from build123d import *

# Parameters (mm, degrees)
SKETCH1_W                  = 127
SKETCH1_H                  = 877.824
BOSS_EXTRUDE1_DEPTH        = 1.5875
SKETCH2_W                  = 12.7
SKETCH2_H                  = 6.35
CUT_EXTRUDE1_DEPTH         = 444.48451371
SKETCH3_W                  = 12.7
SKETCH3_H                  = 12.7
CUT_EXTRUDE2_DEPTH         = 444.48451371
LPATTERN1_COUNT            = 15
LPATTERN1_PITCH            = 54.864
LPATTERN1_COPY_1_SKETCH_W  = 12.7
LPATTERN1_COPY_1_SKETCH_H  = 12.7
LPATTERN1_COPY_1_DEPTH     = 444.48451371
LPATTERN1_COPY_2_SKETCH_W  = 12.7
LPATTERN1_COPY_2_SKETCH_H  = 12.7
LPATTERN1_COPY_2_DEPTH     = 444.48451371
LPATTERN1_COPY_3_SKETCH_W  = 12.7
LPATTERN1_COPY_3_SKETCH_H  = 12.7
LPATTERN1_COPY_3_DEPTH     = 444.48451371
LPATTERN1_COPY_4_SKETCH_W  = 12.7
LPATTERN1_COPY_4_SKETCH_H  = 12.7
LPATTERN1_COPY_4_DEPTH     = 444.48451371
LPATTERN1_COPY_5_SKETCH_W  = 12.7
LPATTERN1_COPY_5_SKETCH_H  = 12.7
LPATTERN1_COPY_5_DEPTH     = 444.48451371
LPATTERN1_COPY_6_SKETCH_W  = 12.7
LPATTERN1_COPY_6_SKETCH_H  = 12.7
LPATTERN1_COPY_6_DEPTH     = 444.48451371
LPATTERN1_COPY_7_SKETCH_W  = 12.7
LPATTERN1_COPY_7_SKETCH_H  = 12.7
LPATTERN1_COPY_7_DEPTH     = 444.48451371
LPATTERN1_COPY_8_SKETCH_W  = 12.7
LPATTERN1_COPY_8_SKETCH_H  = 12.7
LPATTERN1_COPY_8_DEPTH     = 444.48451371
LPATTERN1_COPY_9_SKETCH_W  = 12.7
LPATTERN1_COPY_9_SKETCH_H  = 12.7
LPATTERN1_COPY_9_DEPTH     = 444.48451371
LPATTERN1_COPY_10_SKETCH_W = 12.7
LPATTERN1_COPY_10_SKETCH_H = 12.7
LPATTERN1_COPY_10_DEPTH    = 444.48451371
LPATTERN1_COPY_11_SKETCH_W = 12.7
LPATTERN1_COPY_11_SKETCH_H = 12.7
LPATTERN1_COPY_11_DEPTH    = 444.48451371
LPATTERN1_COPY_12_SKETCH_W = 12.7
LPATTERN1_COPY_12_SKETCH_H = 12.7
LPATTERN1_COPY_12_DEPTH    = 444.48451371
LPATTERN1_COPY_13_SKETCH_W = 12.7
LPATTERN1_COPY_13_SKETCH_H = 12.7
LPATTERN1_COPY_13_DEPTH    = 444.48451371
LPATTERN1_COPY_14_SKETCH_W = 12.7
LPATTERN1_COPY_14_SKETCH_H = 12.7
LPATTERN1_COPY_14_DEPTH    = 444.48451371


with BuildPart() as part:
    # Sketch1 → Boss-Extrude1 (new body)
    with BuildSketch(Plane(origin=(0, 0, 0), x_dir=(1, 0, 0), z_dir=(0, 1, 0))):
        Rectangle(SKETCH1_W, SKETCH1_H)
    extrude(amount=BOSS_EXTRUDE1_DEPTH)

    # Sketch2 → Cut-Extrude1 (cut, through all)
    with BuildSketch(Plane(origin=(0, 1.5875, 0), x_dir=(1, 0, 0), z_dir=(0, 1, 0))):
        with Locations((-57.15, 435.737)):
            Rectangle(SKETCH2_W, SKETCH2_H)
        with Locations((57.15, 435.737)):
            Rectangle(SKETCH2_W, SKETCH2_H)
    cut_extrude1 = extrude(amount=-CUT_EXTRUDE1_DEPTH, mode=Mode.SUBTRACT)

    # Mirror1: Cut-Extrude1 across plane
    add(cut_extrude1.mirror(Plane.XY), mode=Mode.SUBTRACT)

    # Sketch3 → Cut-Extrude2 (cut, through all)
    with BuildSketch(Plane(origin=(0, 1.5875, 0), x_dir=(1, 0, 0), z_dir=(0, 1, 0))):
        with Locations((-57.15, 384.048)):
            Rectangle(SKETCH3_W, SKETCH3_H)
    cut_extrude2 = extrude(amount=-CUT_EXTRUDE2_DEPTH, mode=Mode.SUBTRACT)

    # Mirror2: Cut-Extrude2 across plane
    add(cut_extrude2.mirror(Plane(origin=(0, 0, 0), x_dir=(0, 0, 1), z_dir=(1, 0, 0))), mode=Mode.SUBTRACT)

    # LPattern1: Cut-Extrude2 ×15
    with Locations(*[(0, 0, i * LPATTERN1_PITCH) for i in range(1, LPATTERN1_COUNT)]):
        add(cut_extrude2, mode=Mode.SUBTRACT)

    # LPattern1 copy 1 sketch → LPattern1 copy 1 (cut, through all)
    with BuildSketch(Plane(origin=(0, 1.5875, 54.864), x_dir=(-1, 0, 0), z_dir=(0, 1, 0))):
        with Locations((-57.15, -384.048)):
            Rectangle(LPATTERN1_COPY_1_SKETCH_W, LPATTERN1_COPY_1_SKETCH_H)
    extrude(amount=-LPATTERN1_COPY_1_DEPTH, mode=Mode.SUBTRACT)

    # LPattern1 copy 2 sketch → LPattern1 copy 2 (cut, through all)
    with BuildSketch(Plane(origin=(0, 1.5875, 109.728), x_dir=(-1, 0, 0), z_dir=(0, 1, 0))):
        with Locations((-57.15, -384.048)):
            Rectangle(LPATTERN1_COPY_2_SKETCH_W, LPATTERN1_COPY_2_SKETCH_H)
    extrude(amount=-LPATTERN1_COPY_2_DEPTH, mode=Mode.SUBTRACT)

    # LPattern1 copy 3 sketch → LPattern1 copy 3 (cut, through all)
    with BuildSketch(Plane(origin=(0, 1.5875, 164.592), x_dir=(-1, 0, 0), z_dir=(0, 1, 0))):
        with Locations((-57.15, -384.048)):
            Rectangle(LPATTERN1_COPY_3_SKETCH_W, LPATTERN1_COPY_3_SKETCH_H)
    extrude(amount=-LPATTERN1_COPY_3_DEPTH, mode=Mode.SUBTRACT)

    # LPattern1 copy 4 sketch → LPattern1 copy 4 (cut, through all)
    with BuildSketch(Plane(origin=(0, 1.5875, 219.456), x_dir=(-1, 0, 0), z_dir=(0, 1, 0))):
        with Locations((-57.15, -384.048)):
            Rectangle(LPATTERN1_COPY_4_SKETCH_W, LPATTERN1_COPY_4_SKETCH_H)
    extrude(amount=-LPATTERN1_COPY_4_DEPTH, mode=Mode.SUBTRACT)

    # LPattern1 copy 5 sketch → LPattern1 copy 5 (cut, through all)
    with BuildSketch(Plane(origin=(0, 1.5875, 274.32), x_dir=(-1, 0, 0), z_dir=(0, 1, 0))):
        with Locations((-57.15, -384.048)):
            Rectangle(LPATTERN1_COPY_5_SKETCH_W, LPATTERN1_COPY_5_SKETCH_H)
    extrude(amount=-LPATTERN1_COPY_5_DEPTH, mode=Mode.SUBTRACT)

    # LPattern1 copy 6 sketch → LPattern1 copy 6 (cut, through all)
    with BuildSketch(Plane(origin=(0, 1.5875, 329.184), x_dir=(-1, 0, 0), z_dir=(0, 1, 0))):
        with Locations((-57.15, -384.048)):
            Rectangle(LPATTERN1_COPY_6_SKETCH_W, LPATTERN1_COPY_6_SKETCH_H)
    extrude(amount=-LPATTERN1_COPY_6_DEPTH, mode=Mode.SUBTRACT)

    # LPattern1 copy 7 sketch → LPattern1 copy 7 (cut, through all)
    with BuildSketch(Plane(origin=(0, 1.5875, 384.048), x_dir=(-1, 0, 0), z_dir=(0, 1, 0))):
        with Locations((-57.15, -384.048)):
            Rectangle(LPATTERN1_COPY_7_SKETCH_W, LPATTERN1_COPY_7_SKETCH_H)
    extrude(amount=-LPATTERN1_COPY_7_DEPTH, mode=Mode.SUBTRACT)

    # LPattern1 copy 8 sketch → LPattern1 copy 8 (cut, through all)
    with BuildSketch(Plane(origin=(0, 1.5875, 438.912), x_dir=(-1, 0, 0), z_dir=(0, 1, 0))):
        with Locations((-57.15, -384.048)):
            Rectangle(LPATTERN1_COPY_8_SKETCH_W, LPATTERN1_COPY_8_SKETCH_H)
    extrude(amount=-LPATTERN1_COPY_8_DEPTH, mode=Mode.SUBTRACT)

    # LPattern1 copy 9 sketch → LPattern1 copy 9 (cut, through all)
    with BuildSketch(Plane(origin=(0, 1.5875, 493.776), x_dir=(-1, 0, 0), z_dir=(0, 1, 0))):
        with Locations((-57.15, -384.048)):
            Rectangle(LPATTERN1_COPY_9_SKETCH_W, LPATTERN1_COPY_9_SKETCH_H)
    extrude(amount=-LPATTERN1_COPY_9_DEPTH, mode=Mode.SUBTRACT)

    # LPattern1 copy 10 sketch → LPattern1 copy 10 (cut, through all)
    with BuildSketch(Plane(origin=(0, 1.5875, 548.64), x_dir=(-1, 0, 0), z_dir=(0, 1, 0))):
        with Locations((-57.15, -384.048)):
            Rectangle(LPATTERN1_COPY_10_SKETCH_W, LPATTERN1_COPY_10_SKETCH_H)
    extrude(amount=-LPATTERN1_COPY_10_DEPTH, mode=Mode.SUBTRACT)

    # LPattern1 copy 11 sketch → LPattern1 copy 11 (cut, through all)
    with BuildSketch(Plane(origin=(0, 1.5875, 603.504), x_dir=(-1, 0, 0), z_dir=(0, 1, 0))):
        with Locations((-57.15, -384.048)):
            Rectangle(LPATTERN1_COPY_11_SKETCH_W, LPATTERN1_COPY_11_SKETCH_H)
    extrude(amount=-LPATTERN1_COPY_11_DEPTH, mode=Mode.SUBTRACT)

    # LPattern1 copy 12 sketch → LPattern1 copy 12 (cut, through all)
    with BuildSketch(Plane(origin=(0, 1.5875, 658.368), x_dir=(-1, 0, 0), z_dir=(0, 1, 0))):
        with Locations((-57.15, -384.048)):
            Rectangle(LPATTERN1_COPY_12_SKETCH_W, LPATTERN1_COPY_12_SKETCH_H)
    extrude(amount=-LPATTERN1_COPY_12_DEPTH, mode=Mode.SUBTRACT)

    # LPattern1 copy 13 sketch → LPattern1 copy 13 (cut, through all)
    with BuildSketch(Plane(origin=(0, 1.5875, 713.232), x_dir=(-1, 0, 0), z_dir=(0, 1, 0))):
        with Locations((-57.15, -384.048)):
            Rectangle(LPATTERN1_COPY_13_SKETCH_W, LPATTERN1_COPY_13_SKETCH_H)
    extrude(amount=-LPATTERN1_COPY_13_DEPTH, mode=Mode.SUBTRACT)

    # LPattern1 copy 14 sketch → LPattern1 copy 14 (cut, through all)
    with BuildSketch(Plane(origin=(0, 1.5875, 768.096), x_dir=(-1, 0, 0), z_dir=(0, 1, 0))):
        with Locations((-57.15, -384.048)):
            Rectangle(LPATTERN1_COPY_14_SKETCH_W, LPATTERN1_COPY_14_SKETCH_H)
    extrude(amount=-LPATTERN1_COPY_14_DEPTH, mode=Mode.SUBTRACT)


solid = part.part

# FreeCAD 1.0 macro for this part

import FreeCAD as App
import Part
import Sketcher
Q = App.Units.Quantity

doc = App.newDocument("Part")
params = doc.addObject("Spreadsheet::Sheet", "Params")
for row, (alias, value) in enumerate([
    ("sketch1_width", "5 in"),
    ("sketch1_height", "34.56 in"),
    ("pad1_length", "0.0625 in"),
    ("sketch2_width", "0.5 in"),
    ("sketch2_height", "0.25 in"),
    ("sketch3_width", "0.5 in"),
    ("linearpattern_pitch", "2.16 in"),
    ("sketch4_width", "0.5 in"),
    ("sketch5_width", "0.5 in"),
    ("sketch6_width", "0.5 in"),
    ("sketch7_width", "0.5 in"),
    ("sketch8_width", "0.5 in"),
    ("sketch9_width", "0.5 in"),
    ("sketch10_width", "0.5 in"),
    ("sketch11_width", "0.5 in"),
    ("sketch12_width", "0.5 in"),
    ("sketch13_width", "0.5 in"),
    ("sketch14_width", "0.5 in"),
    ("sketch15_width", "0.5 in"),
    ("sketch16_width", "0.5 in"),
    ("sketch17_width", "0.5 in"),
], start=1):
    params.set(f"A{row}", alias)
    params.set(f"B{row}", "=" + value)
    params.setAlias(f"B{row}", alias)

body = doc.addObject("PartDesign::Body", "Body")

sketch1 = body.newObject("Sketcher::SketchObject", "Sketch")
sketch1.AttachmentSupport = (doc.getObject("XZ_Plane"), [""])
sketch1.MapMode = "FlatFace"
sketch1.addGeometry(Part.LineSegment(App.Vector(-64, -439, 0), App.Vector(-64, 439, 0)), False)
sketch1.addGeometry(Part.LineSegment(App.Vector(-64, 439, 0), App.Vector(64, 439, 0)), False)
sketch1.addGeometry(Part.LineSegment(App.Vector(64, 439, 0), App.Vector(64, -439, 0)), False)
sketch1.addGeometry(Part.LineSegment(App.Vector(64, -439, 0), App.Vector(-64, -439, 0)), False)
sketch1.addConstraint(Sketcher.Constraint("Coincident", 0, 2, 1, 1))
sketch1.addConstraint(Sketcher.Constraint("Coincident", 1, 2, 2, 1))
sketch1.addConstraint(Sketcher.Constraint("Coincident", 2, 2, 3, 1))
sketch1.addConstraint(Sketcher.Constraint("Coincident", 3, 2, 0, 1))
sketch1.addConstraint(Sketcher.Constraint("Vertical", 0))
sketch1.addConstraint(Sketcher.Constraint("Horizontal", 1))
sketch1.addConstraint(Sketcher.Constraint("Vertical", 2))
sketch1.addConstraint(Sketcher.Constraint("Horizontal", 3))
sketch1.addConstraint(Sketcher.Constraint("Symmetric", 0, 2, 2, 2, -1, 1))
sketch1.addConstraint(Sketcher.Constraint("DistanceX", 1, 1, 1, 2, Q("5 in")))
sketch1.addConstraint(Sketcher.Constraint("DistanceY", 0, 1, 0, 2, Q("34.56 in")))
sketch1.setExpression("Constraints[9]", "Params.sketch1_width")
sketch1.setExpression("Constraints[10]", "Params.sketch1_height")
pad1 = body.newObject("PartDesign::Pad", "Pad")
pad1.Profile = sketch1
pad1.setExpression("Length", "Params.pad1_length")
pad1.Reversed = True

sketch2 = body.newObject("Sketcher::SketchObject", "Sketch001")
sketch2.AttachmentSupport = (doc.getObject("XZ_Plane"), [""])
sketch2.MapMode = "FlatFace"
sketch2.AttachmentOffset = App.Placement(App.Vector(0, 0, -0.0625 * 25.4), App.Rotation())
sketch2.addGeometry(Part.LineSegment(App.Vector(-64, -439, 0), App.Vector(-64, -433, 0)), False)
sketch2.addGeometry(Part.LineSegment(App.Vector(-64, -433, 0), App.Vector(-51, -433, 0)), False)
sketch2.addGeometry(Part.LineSegment(App.Vector(-51, -433, 0), App.Vector(-51, -439, 0)), False)
sketch2.addGeometry(Part.LineSegment(App.Vector(-51, -439, 0), App.Vector(-64, -439, 0)), False)
sketch2.addGeometry(Part.LineSegment(App.Vector(51, -439, 0), App.Vector(51, -433, 0)), False)
sketch2.addGeometry(Part.LineSegment(App.Vector(51, -433, 0), App.Vector(64, -433, 0)), False)
sketch2.addGeometry(Part.LineSegment(App.Vector(64, -433, 0), App.Vector(64, -439, 0)), False)
sketch2.addGeometry(Part.LineSegment(App.Vector(64, -439, 0), App.Vector(51, -439, 0)), False)
sketch2.addConstraint(Sketcher.Constraint("Coincident", 0, 2, 1, 1))
sketch2.addConstraint(Sketcher.Constraint("Coincident", 1, 2, 2, 1))
sketch2.addConstraint(Sketcher.Constraint("Coincident", 2, 2, 3, 1))
sketch2.addConstraint(Sketcher.Constraint("Coincident", 3, 2, 0, 1))
sketch2.addConstraint(Sketcher.Constraint("Coincident", 4, 2, 5, 1))
sketch2.addConstraint(Sketcher.Constraint("Coincident", 5, 2, 6, 1))
sketch2.addConstraint(Sketcher.Constraint("Coincident", 6, 2, 7, 1))
sketch2.addConstraint(Sketcher.Constraint("Coincident", 7, 2, 4, 1))
sketch2.addConstraint(Sketcher.Constraint("Vertical", 0))
sketch2.addConstraint(Sketcher.Constraint("Horizontal", 1))
sketch2.addConstraint(Sketcher.Constraint("Vertical", 2))
sketch2.addConstraint(Sketcher.Constraint("Horizontal", 3))
sketch2.addConstraint(Sketcher.Constraint("Vertical", 4))
sketch2.addConstraint(Sketcher.Constraint("Horizontal", 5))
sketch2.addConstraint(Sketcher.Constraint("Vertical", 6))
sketch2.addConstraint(Sketcher.Constraint("Horizontal", 7))
sketch2.addConstraint(Sketcher.Constraint("Symmetric", 1, 2, 4, 2, -2))
sketch2.addConstraint(Sketcher.Constraint("Symmetric", 3, 2, 6, 2, -2))
sketch2.addConstraint(Sketcher.Constraint("DistanceX", 1, 1, 1, 2, Q("0.5 in")))
sketch2.addConstraint(Sketcher.Constraint("DistanceX", 1, 2, -1, 1, Q("2 in")))
sketch2.addConstraint(Sketcher.Constraint("DistanceY", 0, 1, 0, 2, Q("0.25 in")))
sketch2.addConstraint(Sketcher.Constraint("DistanceY", 0, 2, -1, 1, Q("17.03 in")))
sketch2.setExpression("Constraints[18]", "Params.sketch2_width")
sketch2.setExpression("Constraints[20]", "Params.sketch2_height")
pocket1 = body.newObject("PartDesign::Pocket", "Pocket")
pocket1.Profile = sketch2
pocket1.Type = "ThroughAll"
pocket1.Reversed = True
doc.recompute()

mirrored = body.newObject("PartDesign::Mirrored", "Mirrored")
mirrored.Originals = [pocket1]
mirrored.MirrorPlane = (doc.getObject("XY_Plane"), [""])
body.Tip = mirrored

sketch3 = body.newObject("Sketcher::SketchObject", "Sketch002")
sketch3.AttachmentSupport = (doc.getObject("XZ_Plane"), [""])
sketch3.MapMode = "FlatFace"
sketch3.AttachmentOffset = App.Placement(App.Vector(0, 0, -0.0625 * 25.4), App.Rotation())
sketch3.addGeometry(Part.LineSegment(App.Vector(-64, -390, 0), App.Vector(-64, -378, 0)), False)
sketch3.addGeometry(Part.LineSegment(App.Vector(-64, -378, 0), App.Vector(-51, -378, 0)), False)
sketch3.addGeometry(Part.LineSegment(App.Vector(-51, -378, 0), App.Vector(-51, -390, 0)), False)
sketch3.addGeometry(Part.LineSegment(App.Vector(-51, -390, 0), App.Vector(-64, -390, 0)), False)
sketch3.addConstraint(Sketcher.Constraint("Coincident", 0, 2, 1, 1))
sketch3.addConstraint(Sketcher.Constraint("Coincident", 1, 2, 2, 1))
sketch3.addConstraint(Sketcher.Constraint("Coincident", 2, 2, 3, 1))
sketch3.addConstraint(Sketcher.Constraint("Coincident", 3, 2, 0, 1))
sketch3.addConstraint(Sketcher.Constraint("Vertical", 0))
sketch3.addConstraint(Sketcher.Constraint("Horizontal", 1))
sketch3.addConstraint(Sketcher.Constraint("Vertical", 2))
sketch3.addConstraint(Sketcher.Constraint("Horizontal", 3))
sketch3.addConstraint(Sketcher.Constraint("Equal", 3, 0))
sketch3.addConstraint(Sketcher.Constraint("DistanceX", 1, 1, 1, 2, Q("0.5 in")))
sketch3.addConstraint(Sketcher.Constraint("DistanceX", 1, 2, -1, 1, Q("2 in")))
sketch3.addConstraint(Sketcher.Constraint("DistanceY", 0, 2, -1, 1, Q("14.87 in")))
sketch3.setExpression("Constraints[9]", "Params.sketch3_width")
pocket2 = body.newObject("PartDesign::Pocket", "Pocket001")
pocket2.Profile = sketch3
pocket2.Type = "ThroughAll"
pocket2.Reversed = True
doc.recompute()

mirrored2 = body.newObject("PartDesign::Mirrored", "Mirrored001")
mirrored2.Originals = [pocket2]
mirrored2.MirrorPlane = (doc.getObject("YZ_Plane"), [""])
body.Tip = mirrored2
doc.recompute()

linearpattern = body.newObject("PartDesign::LinearPattern", "LinearPattern")
linearpattern.Originals = [pocket2]
linearpattern.Direction = (doc.getObject("Z_Axis"), [""])
linearpattern.Mode = "offset"
linearpattern.setExpression("Offset", "Params.linearpattern_pitch")
linearpattern.Occurrences = 15
body.Tip = linearpattern

sketch4 = body.newObject("Sketcher::SketchObject", "Sketch003")
sketch4.AttachmentSupport = (doc.getObject("XZ_Plane"), [""])
sketch4.MapMode = "FlatFace"
sketch4.AttachmentOffset = App.Placement(App.Vector(0, 0, -0.0625 * 25.4), App.Rotation())
sketch4.addGeometry(Part.LineSegment(App.Vector(64, -323, 0), App.Vector(64, -336, 0)), False)
sketch4.addGeometry(Part.LineSegment(App.Vector(64, -336, 0), App.Vector(51, -336, 0)), False)
sketch4.addGeometry(Part.LineSegment(App.Vector(51, -336, 0), App.Vector(51, -323, 0)), False)
sketch4.addGeometry(Part.LineSegment(App.Vector(51, -323, 0), App.Vector(64, -323, 0)), False)
sketch4.addConstraint(Sketcher.Constraint("Coincident", 0, 2, 1, 1))
sketch4.addConstraint(Sketcher.Constraint("Coincident", 1, 2, 2, 1))
sketch4.addConstraint(Sketcher.Constraint("Coincident", 2, 2, 3, 1))
sketch4.addConstraint(Sketcher.Constraint("Coincident", 3, 2, 0, 1))
sketch4.addConstraint(Sketcher.Constraint("Vertical", 0))
sketch4.addConstraint(Sketcher.Constraint("Horizontal", 1))
sketch4.addConstraint(Sketcher.Constraint("Vertical", 2))
sketch4.addConstraint(Sketcher.Constraint("Horizontal", 3))
sketch4.addConstraint(Sketcher.Constraint("Equal", 3, 0))
sketch4.addConstraint(Sketcher.Constraint("DistanceX", 1, 2, 1, 1, Q("0.5 in")))
sketch4.addConstraint(Sketcher.Constraint("DistanceX", -1, 1, 1, 2, Q("2 in")))
sketch4.addConstraint(Sketcher.Constraint("DistanceY", 0, 2, -1, 1, Q("13.21 in")))
sketch4.setExpression("Constraints[9]", "Params.sketch4_width")
pocket3 = body.newObject("PartDesign::Pocket", "Pocket002")
pocket3.Profile = sketch4
pocket3.Type = "ThroughAll"
pocket3.Reversed = True

sketch5 = body.newObject("Sketcher::SketchObject", "Sketch004")
sketch5.AttachmentSupport = (doc.getObject("XZ_Plane"), [""])
sketch5.MapMode = "FlatFace"
sketch5.AttachmentOffset = App.Placement(App.Vector(0, 0, -0.0625 * 25.4), App.Rotation())
sketch5.addGeometry(Part.LineSegment(App.Vector(64, -268, 0), App.Vector(64, -281, 0)), False)
sketch5.addGeometry(Part.LineSegment(App.Vector(64, -281, 0), App.Vector(51, -281, 0)), False)
sketch5.addGeometry(Part.LineSegment(App.Vector(51, -281, 0), App.Vector(51, -268, 0)), False)
sketch5.addGeometry(Part.LineSegment(App.Vector(51, -268, 0), App.Vector(64, -268, 0)), False)
sketch5.addConstraint(Sketcher.Constraint("Coincident", 0, 2, 1, 1))
sketch5.addConstraint(Sketcher.Constraint("Coincident", 1, 2, 2, 1))
sketch5.addConstraint(Sketcher.Constraint("Coincident", 2, 2, 3, 1))
sketch5.addConstraint(Sketcher.Constraint("Coincident", 3, 2, 0, 1))
sketch5.addConstraint(Sketcher.Constraint("Vertical", 0))
sketch5.addConstraint(Sketcher.Constraint("Horizontal", 1))
sketch5.addConstraint(Sketcher.Constraint("Vertical", 2))
sketch5.addConstraint(Sketcher.Constraint("Horizontal", 3))
sketch5.addConstraint(Sketcher.Constraint("Equal", 3, 0))
sketch5.addConstraint(Sketcher.Constraint("DistanceX", 1, 2, 1, 1, Q("0.5 in")))
sketch5.addConstraint(Sketcher.Constraint("DistanceX", -1, 1, 1, 2, Q("2 in")))
sketch5.addConstraint(Sketcher.Constraint("DistanceY", 0, 2, -1, 1, Q("11.05 in")))
sketch5.setExpression("Constraints[9]", "Params.sketch5_width")
pocket4 = body.newObject("PartDesign::Pocket", "Pocket003")
pocket4.Profile = sketch5
pocket4.Type = "ThroughAll"
pocket4.Reversed = True

sketch6 = body.newObject("Sketcher::SketchObject", "Sketch005")
sketch6.AttachmentSupport = (doc.getObject("XZ_Plane"), [""])
sketch6.MapMode = "FlatFace"
sketch6.AttachmentOffset = App.Placement(App.Vector(0, 0, -0.0625 * 25.4), App.Rotation())
sketch6.addGeometry(Part.LineSegment(App.Vector(64, -213, 0), App.Vector(64, -226, 0)), False)
sketch6.addGeometry(Part.LineSegment(App.Vector(64, -226, 0), App.Vector(51, -226, 0)), False)
sketch6.addGeometry(Part.LineSegment(App.Vector(51, -226, 0), App.Vector(51, -213, 0)), False)
sketch6.addGeometry(Part.LineSegment(App.Vector(51, -213, 0), App.Vector(64, -213, 0)), False)
sketch6.addConstraint(Sketcher.Constraint("Coincident", 0, 2, 1, 1))
sketch6.addConstraint(Sketcher.Constraint("Coincident", 1, 2, 2, 1))
sketch6.addConstraint(Sketcher.Constraint("Coincident", 2, 2, 3, 1))
sketch6.addConstraint(Sketcher.Constraint("Coincident", 3, 2, 0, 1))
sketch6.addConstraint(Sketcher.Constraint("Vertical", 0))
sketch6.addConstraint(Sketcher.Constraint("Horizontal", 1))
sketch6.addConstraint(Sketcher.Constraint("Vertical", 2))
sketch6.addConstraint(Sketcher.Constraint("Horizontal", 3))
sketch6.addConstraint(Sketcher.Constraint("Equal", 3, 0))
sketch6.addConstraint(Sketcher.Constraint("DistanceX", 1, 2, 1, 1, Q("0.5 in")))
sketch6.addConstraint(Sketcher.Constraint("DistanceX", -1, 1, 1, 2, Q("2 in")))
sketch6.addConstraint(Sketcher.Constraint("DistanceY", 0, 2, -1, 1, Q("8.89 in")))
sketch6.setExpression("Constraints[9]", "Params.sketch6_width")
pocket5 = body.newObject("PartDesign::Pocket", "Pocket004")
pocket5.Profile = sketch6
pocket5.Type = "ThroughAll"
pocket5.Reversed = True

sketch7 = body.newObject("Sketcher::SketchObject", "Sketch006")
sketch7.AttachmentSupport = (doc.getObject("XZ_Plane"), [""])
sketch7.MapMode = "FlatFace"
sketch7.AttachmentOffset = App.Placement(App.Vector(0, 0, -0.0625 * 25.4), App.Rotation())
sketch7.addGeometry(Part.LineSegment(App.Vector(64, -158, 0), App.Vector(64, -171, 0)), False)
sketch7.addGeometry(Part.LineSegment(App.Vector(64, -171, 0), App.Vector(51, -171, 0)), False)
sketch7.addGeometry(Part.LineSegment(App.Vector(51, -171, 0), App.Vector(51, -158, 0)), False)
sketch7.addGeometry(Part.LineSegment(App.Vector(51, -158, 0), App.Vector(64, -158, 0)), False)
sketch7.addConstraint(Sketcher.Constraint("Coincident", 0, 2, 1, 1))
sketch7.addConstraint(Sketcher.Constraint("Coincident", 1, 2, 2, 1))
sketch7.addConstraint(Sketcher.Constraint("Coincident", 2, 2, 3, 1))
sketch7.addConstraint(Sketcher.Constraint("Coincident", 3, 2, 0, 1))
sketch7.addConstraint(Sketcher.Constraint("Vertical", 0))
sketch7.addConstraint(Sketcher.Constraint("Horizontal", 1))
sketch7.addConstraint(Sketcher.Constraint("Vertical", 2))
sketch7.addConstraint(Sketcher.Constraint("Horizontal", 3))
sketch7.addConstraint(Sketcher.Constraint("Equal", 3, 0))
sketch7.addConstraint(Sketcher.Constraint("DistanceX", 1, 2, 1, 1, Q("0.5 in")))
sketch7.addConstraint(Sketcher.Constraint("DistanceX", -1, 1, 1, 2, Q("2 in")))
sketch7.addConstraint(Sketcher.Constraint("DistanceY", 0, 2, -1, 1, Q("6.73 in")))
sketch7.setExpression("Constraints[9]", "Params.sketch7_width")
pocket6 = body.newObject("PartDesign::Pocket", "Pocket005")
pocket6.Profile = sketch7
pocket6.Type = "ThroughAll"
pocket6.Reversed = True

sketch8 = body.newObject("Sketcher::SketchObject", "Sketch007")
sketch8.AttachmentSupport = (doc.getObject("XZ_Plane"), [""])
sketch8.MapMode = "FlatFace"
sketch8.AttachmentOffset = App.Placement(App.Vector(0, 0, -0.0625 * 25.4), App.Rotation())
sketch8.addGeometry(Part.LineSegment(App.Vector(64, -103, 0), App.Vector(64, -116, 0)), False)
sketch8.addGeometry(Part.LineSegment(App.Vector(64, -116, 0), App.Vector(51, -116, 0)), False)
sketch8.addGeometry(Part.LineSegment(App.Vector(51, -116, 0), App.Vector(51, -103, 0)), False)
sketch8.addGeometry(Part.LineSegment(App.Vector(51, -103, 0), App.Vector(64, -103, 0)), False)
sketch8.addConstraint(Sketcher.Constraint("Coincident", 0, 2, 1, 1))
sketch8.addConstraint(Sketcher.Constraint("Coincident", 1, 2, 2, 1))
sketch8.addConstraint(Sketcher.Constraint("Coincident", 2, 2, 3, 1))
sketch8.addConstraint(Sketcher.Constraint("Coincident", 3, 2, 0, 1))
sketch8.addConstraint(Sketcher.Constraint("Vertical", 0))
sketch8.addConstraint(Sketcher.Constraint("Horizontal", 1))
sketch8.addConstraint(Sketcher.Constraint("Vertical", 2))
sketch8.addConstraint(Sketcher.Constraint("Horizontal", 3))
sketch8.addConstraint(Sketcher.Constraint("Equal", 3, 0))
sketch8.addConstraint(Sketcher.Constraint("DistanceX", 1, 2, 1, 1, Q("0.5 in")))
sketch8.addConstraint(Sketcher.Constraint("DistanceX", -1, 1, 1, 2, Q("2 in")))
sketch8.addConstraint(Sketcher.Constraint("DistanceY", 0, 2, -1, 1, Q("4.57 in")))
sketch8.setExpression("Constraints[9]", "Params.sketch8_width")
pocket7 = body.newObject("PartDesign::Pocket", "Pocket006")
pocket7.Profile = sketch8
pocket7.Type = "ThroughAll"
pocket7.Reversed = True

sketch9 = body.newObject("Sketcher::SketchObject", "Sketch008")
sketch9.AttachmentSupport = (doc.getObject("XZ_Plane"), [""])
sketch9.MapMode = "FlatFace"
sketch9.AttachmentOffset = App.Placement(App.Vector(0, 0, -0.0625 * 25.4), App.Rotation())
sketch9.addGeometry(Part.LineSegment(App.Vector(64, -49, 0), App.Vector(64, -61, 0)), False)
sketch9.addGeometry(Part.LineSegment(App.Vector(64, -61, 0), App.Vector(51, -61, 0)), False)
sketch9.addGeometry(Part.LineSegment(App.Vector(51, -61, 0), App.Vector(51, -49, 0)), False)
sketch9.addGeometry(Part.LineSegment(App.Vector(51, -49, 0), App.Vector(64, -49, 0)), False)
sketch9.addConstraint(Sketcher.Constraint("Coincident", 0, 2, 1, 1))
sketch9.addConstraint(Sketcher.Constraint("Coincident", 1, 2, 2, 1))
sketch9.addConstraint(Sketcher.Constraint("Coincident", 2, 2, 3, 1))
sketch9.addConstraint(Sketcher.Constraint("Coincident", 3, 2, 0, 1))
sketch9.addConstraint(Sketcher.Constraint("Vertical", 0))
sketch9.addConstraint(Sketcher.Constraint("Horizontal", 1))
sketch9.addConstraint(Sketcher.Constraint("Vertical", 2))
sketch9.addConstraint(Sketcher.Constraint("Horizontal", 3))
sketch9.addConstraint(Sketcher.Constraint("Equal", 3, 0))
sketch9.addConstraint(Sketcher.Constraint("DistanceX", 1, 2, 1, 1, Q("0.5 in")))
sketch9.addConstraint(Sketcher.Constraint("DistanceX", -1, 1, 1, 2, Q("2 in")))
sketch9.addConstraint(Sketcher.Constraint("DistanceY", 0, 2, -1, 1, Q("2.41 in")))
sketch9.setExpression("Constraints[9]", "Params.sketch9_width")
pocket8 = body.newObject("PartDesign::Pocket", "Pocket007")
pocket8.Profile = sketch9
pocket8.Type = "ThroughAll"
pocket8.Reversed = True

sketch10 = body.newObject("Sketcher::SketchObject", "Sketch009")
sketch10.AttachmentSupport = (doc.getObject("XZ_Plane"), [""])
sketch10.MapMode = "FlatFace"
sketch10.AttachmentOffset = App.Placement(App.Vector(0, 0, -0.0625 * 25.4), App.Rotation())
sketch10.addGeometry(Part.LineSegment(App.Vector(64, 6, 0), App.Vector(64, -6, 0)), False)
sketch10.addGeometry(Part.LineSegment(App.Vector(64, -6, 0), App.Vector(51, -6, 0)), False)
sketch10.addGeometry(Part.LineSegment(App.Vector(51, -6, 0), App.Vector(51, 6, 0)), False)
sketch10.addGeometry(Part.LineSegment(App.Vector(51, 6, 0), App.Vector(64, 6, 0)), False)
sketch10.addConstraint(Sketcher.Constraint("Coincident", 0, 2, 1, 1))
sketch10.addConstraint(Sketcher.Constraint("Coincident", 1, 2, 2, 1))
sketch10.addConstraint(Sketcher.Constraint("Coincident", 2, 2, 3, 1))
sketch10.addConstraint(Sketcher.Constraint("Coincident", 3, 2, 0, 1))
sketch10.addConstraint(Sketcher.Constraint("Vertical", 0))
sketch10.addConstraint(Sketcher.Constraint("Horizontal", 1))
sketch10.addConstraint(Sketcher.Constraint("Vertical", 2))
sketch10.addConstraint(Sketcher.Constraint("Horizontal", 3))
sketch10.addConstraint(Sketcher.Constraint("Equal", 3, 0))
sketch10.addConstraint(Sketcher.Constraint("DistanceX", 1, 2, 1, 1, Q("0.5 in")))
sketch10.addConstraint(Sketcher.Constraint("DistanceX", -1, 1, 1, 2, Q("2 in")))
sketch10.addConstraint(Sketcher.Constraint("DistanceY", 0, 2, -1, 1, Q("0.25 in")))
sketch10.setExpression("Constraints[9]", "Params.sketch10_width")
pocket9 = body.newObject("PartDesign::Pocket", "Pocket008")
pocket9.Profile = sketch10
pocket9.Type = "ThroughAll"
pocket9.Reversed = True

sketch11 = body.newObject("Sketcher::SketchObject", "Sketch010")
sketch11.AttachmentSupport = (doc.getObject("XZ_Plane"), [""])
sketch11.MapMode = "FlatFace"
sketch11.AttachmentOffset = App.Placement(App.Vector(0, 0, -0.0625 * 25.4), App.Rotation())
sketch11.addGeometry(Part.LineSegment(App.Vector(64, 61, 0), App.Vector(64, 49, 0)), False)
sketch11.addGeometry(Part.LineSegment(App.Vector(64, 49, 0), App.Vector(51, 49, 0)), False)
sketch11.addGeometry(Part.LineSegment(App.Vector(51, 49, 0), App.Vector(51, 61, 0)), False)
sketch11.addGeometry(Part.LineSegment(App.Vector(51, 61, 0), App.Vector(64, 61, 0)), False)
sketch11.addConstraint(Sketcher.Constraint("Coincident", 0, 2, 1, 1))
sketch11.addConstraint(Sketcher.Constraint("Coincident", 1, 2, 2, 1))
sketch11.addConstraint(Sketcher.Constraint("Coincident", 2, 2, 3, 1))
sketch11.addConstraint(Sketcher.Constraint("Coincident", 3, 2, 0, 1))
sketch11.addConstraint(Sketcher.Constraint("Vertical", 0))
sketch11.addConstraint(Sketcher.Constraint("Horizontal", 1))
sketch11.addConstraint(Sketcher.Constraint("Vertical", 2))
sketch11.addConstraint(Sketcher.Constraint("Horizontal", 3))
sketch11.addConstraint(Sketcher.Constraint("Equal", 3, 0))
sketch11.addConstraint(Sketcher.Constraint("DistanceX", 1, 2, 1, 1, Q("0.5 in")))
sketch11.addConstraint(Sketcher.Constraint("DistanceX", -1, 1, 1, 2, Q("2 in")))
sketch11.addConstraint(Sketcher.Constraint("DistanceY", -1, 1, 0, 2, Q("1.91 in")))
sketch11.setExpression("Constraints[9]", "Params.sketch11_width")
pocket10 = body.newObject("PartDesign::Pocket", "Pocket009")
pocket10.Profile = sketch11
pocket10.Type = "ThroughAll"
pocket10.Reversed = True

sketch12 = body.newObject("Sketcher::SketchObject", "Sketch011")
sketch12.AttachmentSupport = (doc.getObject("XZ_Plane"), [""])
sketch12.MapMode = "FlatFace"
sketch12.AttachmentOffset = App.Placement(App.Vector(0, 0, -0.0625 * 25.4), App.Rotation())
sketch12.addGeometry(Part.LineSegment(App.Vector(64, 116, 0), App.Vector(64, 103, 0)), False)
sketch12.addGeometry(Part.LineSegment(App.Vector(64, 103, 0), App.Vector(51, 103, 0)), False)
sketch12.addGeometry(Part.LineSegment(App.Vector(51, 103, 0), App.Vector(51, 116, 0)), False)
sketch12.addGeometry(Part.LineSegment(App.Vector(51, 116, 0), App.Vector(64, 116, 0)), False)
sketch12.addConstraint(Sketcher.Constraint("Coincident", 0, 2, 1, 1))
sketch12.addConstraint(Sketcher.Constraint("Coincident", 1, 2, 2, 1))
sketch12.addConstraint(Sketcher.Constraint("Coincident", 2, 2, 3, 1))
sketch12.addConstraint(Sketcher.Constraint("Coincident", 3, 2, 0, 1))
sketch12.addConstraint(Sketcher.Constraint("Vertical", 0))
sketch12.addConstraint(Sketcher.Constraint("Horizontal", 1))
sketch12.addConstraint(Sketcher.Constraint("Vertical", 2))
sketch12.addConstraint(Sketcher.Constraint("Horizontal", 3))
sketch12.addConstraint(Sketcher.Constraint("Equal", 3, 0))
sketch12.addConstraint(Sketcher.Constraint("DistanceX", 1, 2, 1, 1, Q("0.5 in")))
sketch12.addConstraint(Sketcher.Constraint("DistanceX", -1, 1, 1, 2, Q("2 in")))
sketch12.addConstraint(Sketcher.Constraint("DistanceY", -1, 1, 0, 2, Q("4.07 in")))
sketch12.setExpression("Constraints[9]", "Params.sketch12_width")
pocket11 = body.newObject("PartDesign::Pocket", "Pocket010")
pocket11.Profile = sketch12
pocket11.Type = "ThroughAll"
pocket11.Reversed = True

sketch13 = body.newObject("Sketcher::SketchObject", "Sketch012")
sketch13.AttachmentSupport = (doc.getObject("XZ_Plane"), [""])
sketch13.MapMode = "FlatFace"
sketch13.AttachmentOffset = App.Placement(App.Vector(0, 0, -0.0625 * 25.4), App.Rotation())
sketch13.addGeometry(Part.LineSegment(App.Vector(64, 171, 0), App.Vector(64, 158, 0)), False)
sketch13.addGeometry(Part.LineSegment(App.Vector(64, 158, 0), App.Vector(51, 158, 0)), False)
sketch13.addGeometry(Part.LineSegment(App.Vector(51, 158, 0), App.Vector(51, 171, 0)), False)
sketch13.addGeometry(Part.LineSegment(App.Vector(51, 171, 0), App.Vector(64, 171, 0)), False)
sketch13.addConstraint(Sketcher.Constraint("Coincident", 0, 2, 1, 1))
sketch13.addConstraint(Sketcher.Constraint("Coincident", 1, 2, 2, 1))
sketch13.addConstraint(Sketcher.Constraint("Coincident", 2, 2, 3, 1))
sketch13.addConstraint(Sketcher.Constraint("Coincident", 3, 2, 0, 1))
sketch13.addConstraint(Sketcher.Constraint("Vertical", 0))
sketch13.addConstraint(Sketcher.Constraint("Horizontal", 1))
sketch13.addConstraint(Sketcher.Constraint("Vertical", 2))
sketch13.addConstraint(Sketcher.Constraint("Horizontal", 3))
sketch13.addConstraint(Sketcher.Constraint("Equal", 3, 0))
sketch13.addConstraint(Sketcher.Constraint("DistanceX", 1, 2, 1, 1, Q("0.5 in")))
sketch13.addConstraint(Sketcher.Constraint("DistanceX", -1, 1, 1, 2, Q("2 in")))
sketch13.addConstraint(Sketcher.Constraint("DistanceY", -1, 1, 0, 2, Q("6.23 in")))
sketch13.setExpression("Constraints[9]", "Params.sketch13_width")
pocket12 = body.newObject("PartDesign::Pocket", "Pocket011")
pocket12.Profile = sketch13
pocket12.Type = "ThroughAll"
pocket12.Reversed = True

sketch14 = body.newObject("Sketcher::SketchObject", "Sketch013")
sketch14.AttachmentSupport = (doc.getObject("XZ_Plane"), [""])
sketch14.MapMode = "FlatFace"
sketch14.AttachmentOffset = App.Placement(App.Vector(0, 0, -0.0625 * 25.4), App.Rotation())
sketch14.addGeometry(Part.LineSegment(App.Vector(64, 226, 0), App.Vector(64, 213, 0)), False)
sketch14.addGeometry(Part.LineSegment(App.Vector(64, 213, 0), App.Vector(51, 213, 0)), False)
sketch14.addGeometry(Part.LineSegment(App.Vector(51, 213, 0), App.Vector(51, 226, 0)), False)
sketch14.addGeometry(Part.LineSegment(App.Vector(51, 226, 0), App.Vector(64, 226, 0)), False)
sketch14.addConstraint(Sketcher.Constraint("Coincident", 0, 2, 1, 1))
sketch14.addConstraint(Sketcher.Constraint("Coincident", 1, 2, 2, 1))
sketch14.addConstraint(Sketcher.Constraint("Coincident", 2, 2, 3, 1))
sketch14.addConstraint(Sketcher.Constraint("Coincident", 3, 2, 0, 1))
sketch14.addConstraint(Sketcher.Constraint("Vertical", 0))
sketch14.addConstraint(Sketcher.Constraint("Horizontal", 1))
sketch14.addConstraint(Sketcher.Constraint("Vertical", 2))
sketch14.addConstraint(Sketcher.Constraint("Horizontal", 3))
sketch14.addConstraint(Sketcher.Constraint("Equal", 3, 0))
sketch14.addConstraint(Sketcher.Constraint("DistanceX", 1, 2, 1, 1, Q("0.5 in")))
sketch14.addConstraint(Sketcher.Constraint("DistanceX", -1, 1, 1, 2, Q("2 in")))
sketch14.addConstraint(Sketcher.Constraint("DistanceY", -1, 1, 0, 2, Q("8.39 in")))
sketch14.setExpression("Constraints[9]", "Params.sketch14_width")
pocket13 = body.newObject("PartDesign::Pocket", "Pocket012")
pocket13.Profile = sketch14
pocket13.Type = "ThroughAll"
pocket13.Reversed = True

sketch15 = body.newObject("Sketcher::SketchObject", "Sketch014")
sketch15.AttachmentSupport = (doc.getObject("XZ_Plane"), [""])
sketch15.MapMode = "FlatFace"
sketch15.AttachmentOffset = App.Placement(App.Vector(0, 0, -0.0625 * 25.4), App.Rotation())
sketch15.addGeometry(Part.LineSegment(App.Vector(64, 281, 0), App.Vector(64, 268, 0)), False)
sketch15.addGeometry(Part.LineSegment(App.Vector(64, 268, 0), App.Vector(51, 268, 0)), False)
sketch15.addGeometry(Part.LineSegment(App.Vector(51, 268, 0), App.Vector(51, 281, 0)), False)
sketch15.addGeometry(Part.LineSegment(App.Vector(51, 281, 0), App.Vector(64, 281, 0)), False)
sketch15.addConstraint(Sketcher.Constraint("Coincident", 0, 2, 1, 1))
sketch15.addConstraint(Sketcher.Constraint("Coincident", 1, 2, 2, 1))
sketch15.addConstraint(Sketcher.Constraint("Coincident", 2, 2, 3, 1))
sketch15.addConstraint(Sketcher.Constraint("Coincident", 3, 2, 0, 1))
sketch15.addConstraint(Sketcher.Constraint("Vertical", 0))
sketch15.addConstraint(Sketcher.Constraint("Horizontal", 1))
sketch15.addConstraint(Sketcher.Constraint("Vertical", 2))
sketch15.addConstraint(Sketcher.Constraint("Horizontal", 3))
sketch15.addConstraint(Sketcher.Constraint("Equal", 3, 0))
sketch15.addConstraint(Sketcher.Constraint("DistanceX", 1, 2, 1, 1, Q("0.5 in")))
sketch15.addConstraint(Sketcher.Constraint("DistanceX", -1, 1, 1, 2, Q("2 in")))
sketch15.addConstraint(Sketcher.Constraint("DistanceY", -1, 1, 0, 2, Q("10.55 in")))
sketch15.setExpression("Constraints[9]", "Params.sketch15_width")
pocket14 = body.newObject("PartDesign::Pocket", "Pocket013")
pocket14.Profile = sketch15
pocket14.Type = "ThroughAll"
pocket14.Reversed = True

sketch16 = body.newObject("Sketcher::SketchObject", "Sketch015")
sketch16.AttachmentSupport = (doc.getObject("XZ_Plane"), [""])
sketch16.MapMode = "FlatFace"
sketch16.AttachmentOffset = App.Placement(App.Vector(0, 0, -0.0625 * 25.4), App.Rotation())
sketch16.addGeometry(Part.LineSegment(App.Vector(64, 336, 0), App.Vector(64, 323, 0)), False)
sketch16.addGeometry(Part.LineSegment(App.Vector(64, 323, 0), App.Vector(51, 323, 0)), False)
sketch16.addGeometry(Part.LineSegment(App.Vector(51, 323, 0), App.Vector(51, 336, 0)), False)
sketch16.addGeometry(Part.LineSegment(App.Vector(51, 336, 0), App.Vector(64, 336, 0)), False)
sketch16.addConstraint(Sketcher.Constraint("Coincident", 0, 2, 1, 1))
sketch16.addConstraint(Sketcher.Constraint("Coincident", 1, 2, 2, 1))
sketch16.addConstraint(Sketcher.Constraint("Coincident", 2, 2, 3, 1))
sketch16.addConstraint(Sketcher.Constraint("Coincident", 3, 2, 0, 1))
sketch16.addConstraint(Sketcher.Constraint("Vertical", 0))
sketch16.addConstraint(Sketcher.Constraint("Horizontal", 1))
sketch16.addConstraint(Sketcher.Constraint("Vertical", 2))
sketch16.addConstraint(Sketcher.Constraint("Horizontal", 3))
sketch16.addConstraint(Sketcher.Constraint("Equal", 3, 0))
sketch16.addConstraint(Sketcher.Constraint("DistanceX", 1, 2, 1, 1, Q("0.5 in")))
sketch16.addConstraint(Sketcher.Constraint("DistanceX", -1, 1, 1, 2, Q("2 in")))
sketch16.addConstraint(Sketcher.Constraint("DistanceY", -1, 1, 0, 2, Q("12.71 in")))
sketch16.setExpression("Constraints[9]", "Params.sketch16_width")
pocket15 = body.newObject("PartDesign::Pocket", "Pocket014")
pocket15.Profile = sketch16
pocket15.Type = "ThroughAll"
pocket15.Reversed = True

sketch17 = body.newObject("Sketcher::SketchObject", "Sketch016")
sketch17.AttachmentSupport = (doc.getObject("XZ_Plane"), [""])
sketch17.MapMode = "FlatFace"
sketch17.AttachmentOffset = App.Placement(App.Vector(0, 0, -0.0625 * 25.4), App.Rotation())
sketch17.addGeometry(Part.LineSegment(App.Vector(64, 390, 0), App.Vector(64, 378, 0)), False)
sketch17.addGeometry(Part.LineSegment(App.Vector(64, 378, 0), App.Vector(51, 378, 0)), False)
sketch17.addGeometry(Part.LineSegment(App.Vector(51, 378, 0), App.Vector(51, 390, 0)), False)
sketch17.addGeometry(Part.LineSegment(App.Vector(51, 390, 0), App.Vector(64, 390, 0)), False)
sketch17.addConstraint(Sketcher.Constraint("Coincident", 0, 2, 1, 1))
sketch17.addConstraint(Sketcher.Constraint("Coincident", 1, 2, 2, 1))
sketch17.addConstraint(Sketcher.Constraint("Coincident", 2, 2, 3, 1))
sketch17.addConstraint(Sketcher.Constraint("Coincident", 3, 2, 0, 1))
sketch17.addConstraint(Sketcher.Constraint("Vertical", 0))
sketch17.addConstraint(Sketcher.Constraint("Horizontal", 1))
sketch17.addConstraint(Sketcher.Constraint("Vertical", 2))
sketch17.addConstraint(Sketcher.Constraint("Horizontal", 3))
sketch17.addConstraint(Sketcher.Constraint("Equal", 3, 0))
sketch17.addConstraint(Sketcher.Constraint("DistanceX", 1, 2, 1, 1, Q("0.5 in")))
sketch17.addConstraint(Sketcher.Constraint("DistanceX", -1, 1, 1, 2, Q("2 in")))
sketch17.addConstraint(Sketcher.Constraint("DistanceY", -1, 1, 0, 2, Q("14.87 in")))
sketch17.setExpression("Constraints[9]", "Params.sketch17_width")
pocket16 = body.newObject("PartDesign::Pocket", "Pocket015")
pocket16.Profile = sketch17
pocket16.Type = "ThroughAll"
pocket16.Reversed = True

doc.recompute()
